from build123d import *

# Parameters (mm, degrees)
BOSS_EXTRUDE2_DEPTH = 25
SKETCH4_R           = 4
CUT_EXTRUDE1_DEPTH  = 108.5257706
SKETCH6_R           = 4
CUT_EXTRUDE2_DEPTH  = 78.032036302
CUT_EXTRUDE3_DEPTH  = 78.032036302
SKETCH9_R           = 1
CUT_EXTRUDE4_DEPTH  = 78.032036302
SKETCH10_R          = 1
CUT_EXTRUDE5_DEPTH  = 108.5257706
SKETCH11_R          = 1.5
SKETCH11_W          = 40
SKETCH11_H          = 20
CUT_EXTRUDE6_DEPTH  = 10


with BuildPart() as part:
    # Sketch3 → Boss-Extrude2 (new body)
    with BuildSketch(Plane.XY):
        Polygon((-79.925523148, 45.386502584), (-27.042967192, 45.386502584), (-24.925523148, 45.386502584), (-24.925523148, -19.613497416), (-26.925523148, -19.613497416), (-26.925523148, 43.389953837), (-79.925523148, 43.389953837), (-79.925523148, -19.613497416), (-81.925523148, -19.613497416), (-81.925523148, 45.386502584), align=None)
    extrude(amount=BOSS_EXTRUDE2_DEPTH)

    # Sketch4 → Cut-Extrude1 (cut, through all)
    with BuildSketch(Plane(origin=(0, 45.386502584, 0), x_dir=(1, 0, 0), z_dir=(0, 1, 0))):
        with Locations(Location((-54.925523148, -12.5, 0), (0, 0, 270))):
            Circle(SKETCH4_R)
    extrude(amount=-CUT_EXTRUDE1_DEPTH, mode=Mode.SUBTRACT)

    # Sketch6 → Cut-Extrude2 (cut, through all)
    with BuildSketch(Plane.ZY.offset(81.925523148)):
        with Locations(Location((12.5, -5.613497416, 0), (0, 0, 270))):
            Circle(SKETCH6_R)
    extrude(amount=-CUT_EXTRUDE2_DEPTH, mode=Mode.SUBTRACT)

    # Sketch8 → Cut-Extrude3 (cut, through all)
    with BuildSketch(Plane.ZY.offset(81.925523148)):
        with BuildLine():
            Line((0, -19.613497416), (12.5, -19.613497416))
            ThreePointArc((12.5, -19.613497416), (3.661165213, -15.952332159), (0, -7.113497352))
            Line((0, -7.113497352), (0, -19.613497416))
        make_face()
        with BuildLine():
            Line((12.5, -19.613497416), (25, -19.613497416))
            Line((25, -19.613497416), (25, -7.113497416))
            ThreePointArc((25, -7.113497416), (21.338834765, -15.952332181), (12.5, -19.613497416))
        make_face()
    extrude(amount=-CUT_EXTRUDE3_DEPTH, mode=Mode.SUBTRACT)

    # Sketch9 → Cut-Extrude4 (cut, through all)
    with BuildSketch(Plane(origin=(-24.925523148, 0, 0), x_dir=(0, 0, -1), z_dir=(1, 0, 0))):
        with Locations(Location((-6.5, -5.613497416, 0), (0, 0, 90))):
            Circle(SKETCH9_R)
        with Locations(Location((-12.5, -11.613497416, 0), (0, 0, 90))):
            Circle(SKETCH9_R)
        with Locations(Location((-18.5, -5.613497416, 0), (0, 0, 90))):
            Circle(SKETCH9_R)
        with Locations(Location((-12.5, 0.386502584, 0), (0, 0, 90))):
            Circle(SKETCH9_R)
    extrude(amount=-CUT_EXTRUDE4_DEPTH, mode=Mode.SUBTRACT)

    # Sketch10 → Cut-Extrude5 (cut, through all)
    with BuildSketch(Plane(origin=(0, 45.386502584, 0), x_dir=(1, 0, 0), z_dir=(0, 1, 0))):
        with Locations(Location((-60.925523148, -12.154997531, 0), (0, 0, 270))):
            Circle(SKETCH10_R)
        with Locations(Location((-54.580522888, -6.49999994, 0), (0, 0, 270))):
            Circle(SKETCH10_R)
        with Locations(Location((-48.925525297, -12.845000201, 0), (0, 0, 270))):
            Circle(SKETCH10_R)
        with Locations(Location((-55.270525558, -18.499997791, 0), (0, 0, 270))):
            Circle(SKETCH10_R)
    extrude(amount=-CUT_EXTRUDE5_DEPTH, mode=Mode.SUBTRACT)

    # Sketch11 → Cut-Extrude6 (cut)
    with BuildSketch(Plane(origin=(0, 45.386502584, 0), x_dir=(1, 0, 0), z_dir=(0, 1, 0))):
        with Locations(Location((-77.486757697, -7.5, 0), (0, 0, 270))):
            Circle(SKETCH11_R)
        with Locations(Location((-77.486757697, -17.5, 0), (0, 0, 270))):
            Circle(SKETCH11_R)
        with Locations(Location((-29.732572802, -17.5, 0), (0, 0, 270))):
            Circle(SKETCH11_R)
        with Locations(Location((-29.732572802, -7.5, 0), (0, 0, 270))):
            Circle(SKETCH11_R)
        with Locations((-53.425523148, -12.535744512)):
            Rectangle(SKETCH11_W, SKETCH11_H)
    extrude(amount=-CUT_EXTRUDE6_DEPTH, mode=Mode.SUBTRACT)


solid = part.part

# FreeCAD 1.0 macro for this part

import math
import FreeCAD as App
import Part
import Sketcher

V = App.Vector
Q = App.Units.Quantity

doc = App.newDocument("Part")
body = doc.addObject("PartDesign::Body", "Body")

sketch1 = body.newObject("Sketcher::SketchObject", "Sketch")
sketch1.AttachmentSupport = (doc.getObject("XY_Plane"), [""])
sketch1.MapMode = "FlatFace"
sketch1.addGeometry([
    Part.LineSegment(V(-24.9, 45.4, 0), V(-81.9, 45.4, 0)),
    Part.LineSegment(V(-81.9, 45.4, 0), V(-81.9, -19.6, 0)),
    Part.LineSegment(V(-81.9, -19.6, 0), V(-79.9, -19.6, 0)),
    Part.LineSegment(V(-79.9, -19.6, 0), V(-79.9, 43.4, 0)),
    Part.LineSegment(V(-79.9, 43.4, 0), V(-26.9, 43.4, 0)),
    Part.LineSegment(V(-26.9, 43.4, 0), V(-26.9, -19.6, 0)),
    Part.LineSegment(V(-26.9, -19.6, 0), V(-24.9, -19.6, 0)),
    Part.LineSegment(V(-24.9, -19.6, 0), V(-24.9, 45.4, 0)),
], False)
sketch1.addConstraint([
    Sketcher.Constraint("Coincident", 0, 2, 1, 1),
    Sketcher.Constraint("Coincident", 1, 2, 2, 1),
    Sketcher.Constraint("Coincident", 2, 2, 3, 1),
    Sketcher.Constraint("Coincident", 3, 2, 4, 1),
    Sketcher.Constraint("Coincident", 4, 2, 5, 1),
    Sketcher.Constraint("Coincident", 5, 2, 6, 1),
    Sketcher.Constraint("Coincident", 6, 2, 7, 1),
    Sketcher.Constraint("Coincident", 7, 2, 0, 1),
    Sketcher.Constraint("Horizontal", 0),
    Sketcher.Constraint("Vertical", 1),
    Sketcher.Constraint("Horizontal", 2),
    Sketcher.Constraint("Vertical", 3),
    Sketcher.Constraint("Horizontal", 4),
    Sketcher.Constraint("Vertical", 5),
    Sketcher.Constraint("Horizontal", 6),
    Sketcher.Constraint("Vertical", 7),
    Sketcher.Constraint("Horizontal", 2, 2, 5, 2),
    Sketcher.Constraint("Equal", 2, 6),
    Sketcher.Constraint("DistanceX", 0, 2, 0, 1, Q("57 mm")),
    Sketcher.Constraint("DistanceX", 2, 1, 2, 2, Q("2 mm")),
    Sketcher.Constraint("DistanceY", 1, 2, 1, 1, Q("65 mm")),
    Sketcher.Constraint("DistanceY", 3, 1, 3, 2, Q("63.003451 mm")),
    Sketcher.Constraint("DistanceX", 0, 2, -1, 1, Q("81.925523 mm")),
    Sketcher.Constraint("DistanceY", -1, 1, 0, 2, Q("45.386503 mm")),
])
pad1 = body.newObject("PartDesign::Pad", "Pad")
pad1.Profile = sketch1
pad1.Length = 25

sketch2 = body.newObject("Sketcher::SketchObject", "Sketch001")
sketch2.AttachmentSupport = (doc.getObject("XZ_Plane"), [""])
sketch2.MapMode = "FlatFace"
sketch2.AttachmentOffset = App.Placement(V(0, 0, -45.386503), App.Rotation())
sketch2.addGeometry(Part.Circle(V(-54.9, 12.5, 0), V(0, 0, 1), 4), False)
sketch2.addConstraint([
    Sketcher.Constraint("Diameter", 0, Q("8 mm")),
    Sketcher.Constraint("DistanceY", -1, 1, 0, 3, Q("12.5 mm")),
    Sketcher.Constraint("DistanceX", 0, 3, -1, 1, Q("54.925523 mm")),
])
pocket1 = body.newObject("PartDesign::Pocket", "Pocket")
pocket1.Profile = sketch2
pocket1.Type = "ThroughAll"
pocket1.Reversed = True

sketch3 = body.newObject("Sketcher::SketchObject", "Sketch002")
sketch3.AttachmentSupport = (doc.getObject("YZ_Plane"), [""])
sketch3.MapMode = "FlatFace"
sketch3.AttachmentOffset = App.Placement(V(0, 0, -81.925523), App.Rotation())
sketch3.addGeometry(Part.Circle(V(-5.6, 12.5, 0), V(0, 0, 1), 4), False)
sketch3.addConstraint([
    Sketcher.Constraint("Diameter", 0, Q("8 mm")),
    Sketcher.Constraint("DistanceY", -1, 1, 0, 3, Q("12.5 mm")),
    Sketcher.Constraint("DistanceX", 0, 3, -1, 1, Q("5.613497 mm")),
])
pocket2 = body.newObject("PartDesign::Pocket", "Pocket001")
pocket2.Profile = sketch3
pocket2.Type = "ThroughAll"
pocket2.Reversed = True

sketch4 = body.newObject("Sketcher::SketchObject", "Sketch003")
sketch4.AttachmentSupport = (doc.getObject("YZ_Plane"), [""])
sketch4.MapMode = "FlatFace"
sketch4.AttachmentOffset = App.Placement(V(0, 0, -81.925523), App.Rotation())
sketch4.addGeometry([
    Part.LineSegment(V(-20, 0, 0), V(-20, 12, 0)),
    Part.ArcOfCircle(Part.Circle(V(-7, 12, 0), V(0, 0, 1), 12), math.radians(180), math.radians(270)),
    Part.LineSegment(V(-7, 0, 0), V(-20, 0, 0)),
    Part.LineSegment(V(-20, 12, 0), V(-20, 25, 0)),
    Part.LineSegment(V(-20, 25, 0), V(-7, 25, 0)),
    Part.ArcOfCircle(Part.Circle(V(-7, 13, 0), V(0, 0, 1), 12), math.radians(90), math.radians(180)),
], False)
sketch4.addConstraint([
    Sketcher.Constraint("Tangent", 0, 2, 1, 1),
    Sketcher.Constraint("Tangent", 1, 2, 2, 1),
    Sketcher.Constraint("Coincident", 2, 2, 0, 1),
    Sketcher.Constraint("Coincident", 3, 2, 4, 1),
    Sketcher.Constraint("Tangent", 4, 2, 5, 1),
    Sketcher.Constraint("Tangent", 5, 2, 3, 1),
    Sketcher.Constraint("Vertical", 0),
    Sketcher.Constraint("Horizontal", 2),
    Sketcher.Constraint("Vertical", 3),
    Sketcher.Constraint("Horizontal", 4),
    Sketcher.Constraint("Coincident", 5, 3, 1, 3),
    Sketcher.Constraint("Equal", 1, 5),
    Sketcher.Constraint("PointOnObject", 1, 2, -1),
    Sketcher.Constraint("Radius", 1, Q("12.5 mm")),
    Sketcher.Constraint("DistanceX", 1, 3, -1, 1, Q("7.113497 mm")),
])
pocket3 = body.newObject("PartDesign::Pocket", "Pocket002")
pocket3.Profile = sketch4
pocket3.Type = "ThroughAll"
pocket3.Reversed = True

sketch5 = body.newObject("Sketcher::SketchObject", "Sketch004")
sketch5.AttachmentSupport = (doc.getObject("YZ_Plane"), [""])
sketch5.MapMode = "FlatFace"
sketch5.AttachmentOffset = App.Placement(V(0, 0, -24.925523), App.Rotation())
sketch5.addGeometry([
    Part.Circle(V(-5.6, 6.5, 0), V(0, 0, 1), 1),
    Part.Circle(V(-11.6, 12.5, 0), V(0, 0, 1), 1),
    Part.Circle(V(-5.6, 18.5, 0), V(0, 0, 1), 1),
    Part.Circle(V(0.4, 12.5, 0), V(0, 0, 1), 1),
], False)
sketch5.addConstraint([
    Sketcher.Constraint("Equal", 0, 1),
    Sketcher.Constraint("Equal", 1, 2),
    Sketcher.Constraint("Equal", 2, 3),
    Sketcher.Constraint("Horizontal", 1, 3, 3, 3),
    Sketcher.Constraint("Vertical", 0, 3, 2, 3),
    Sketcher.Constraint("Diameter", 0, Q("2 mm")),
    Sketcher.Constraint("DistanceX", 1, 3, 0, 3, Q("6 mm")),
    Sketcher.Constraint("DistanceY", 0, 3, 1, 3, Q("6 mm")),
    Sketcher.Constraint("DistanceY", 1, 3, 2, 3, Q("6 mm")),
    Sketcher.Constraint("DistanceX", 0, 3, 3, 3, Q("6 mm")),
    Sketcher.Constraint("DistanceY", -1, 1, 0, 3, Q("6.5 mm")),
    Sketcher.Constraint("DistanceX", 0, 3, -1, 1, Q("5.613497 mm")),
])
pocket4 = body.newObject("PartDesign::Pocket", "Pocket003")
pocket4.Profile = sketch5
pocket4.Type = "ThroughAll"

sketch6 = body.newObject("Sketcher::SketchObject", "Sketch005")
sketch6.AttachmentSupport = (doc.getObject("XZ_Plane"), [""])
sketch6.MapMode = "FlatFace"
sketch6.AttachmentOffset = App.Placement(V(0, 0, -45.386503), App.Rotation())
sketch6.addGeometry([
    Part.Circle(V(-60.9, 12.2, 0), V(0, 0, 1), 1),
    Part.Circle(V(-54.6, 6.5, 0), V(0, 0, 1), 1),
    Part.Circle(V(-48.9, 12.8, 0), V(0, 0, 1), 1),
    Part.Circle(V(-55.3, 18.5, 0), V(0, 0, 1), 1),
], False)
sketch6.addConstraint([
    Sketcher.Constraint("Equal", 0, 1),
    Sketcher.Constraint("Equal", 1, 2),
    Sketcher.Constraint("Equal", 2, 3),
    Sketcher.Constraint("Diameter", 0, Q("2 mm")),
    Sketcher.Constraint("DistanceY", -1, 1, 1, 3, Q("6.5 mm")),
    Sketcher.Constraint("DistanceY", -1, 1, 2, 3, Q("12.845 mm")),
    Sketcher.Constraint("DistanceX", 0, 3, 1, 3, Q("6.345 mm")),
    Sketcher.Constraint("DistanceY", 0, 3, 3, 3, Q("6.345 mm")),
    Sketcher.Constraint("DistanceX", 3, 3, 2, 3, Q("6.345 mm")),
    Sketcher.Constraint("DistanceX", 0, 3, -1, 1, Q("60.925523 mm")),
    Sketcher.Constraint("DistanceY", -1, 1, 0, 3, Q("12.154998 mm")),
    Sketcher.Constraint("DistanceX", 2, 3, -1, 1, Q("48.925525 mm")),
])
pocket5 = body.newObject("PartDesign::Pocket", "Pocket004")
pocket5.Profile = sketch6
pocket5.Type = "ThroughAll"
pocket5.Reversed = True

sketch7 = body.newObject("Sketcher::SketchObject", "Sketch006")
sketch7.AttachmentSupport = (doc.getObject("XZ_Plane"), [""])
sketch7.MapMode = "FlatFace"
sketch7.AttachmentOffset = App.Placement(V(0, 0, -45.386503), App.Rotation())
sketch7.addGeometry([
    Part.Circle(V(-77.5, 7.5, 0), V(0, 0, 1), 1.5),
    Part.Circle(V(-77.5, 17.5, 0), V(0, 0, 1), 1.5),
    Part.Circle(V(-29.7, 17.5, 0), V(0, 0, 1), 1.5),
    Part.Circle(V(-29.7, 7.5, 0), V(0, 0, 1), 1.5),
    Part.LineSegment(V(-73.4, 2.5, 0), V(-73.4, 22.5, 0)),
    Part.LineSegment(V(-73.4, 22.5, 0), V(-33.4, 22.5, 0)),
    Part.LineSegment(V(-33.4, 22.5, 0), V(-33.4, 2.5, 0)),
    Part.LineSegment(V(-33.4, 2.5, 0), V(-73.4, 2.5, 0)),
], False)
sketch7.addConstraint([
    Sketcher.Constraint("Coincident", 4, 2, 5, 1),
    Sketcher.Constraint("Coincident", 5, 2, 6, 1),
    Sketcher.Constraint("Coincident", 6, 2, 7, 1),
    Sketcher.Constraint("Coincident", 7, 2, 4, 1),
    Sketcher.Constraint("Vertical", 4),
    Sketcher.Constraint("Horizontal", 5),
    Sketcher.Constraint("Vertical", 6),
    Sketcher.Constraint("Horizontal", 7),
    Sketcher.Constraint("Equal", 0, 1),
    Sketcher.Constraint("Equal", 1, 2),
    Sketcher.Constraint("Equal", 2, 3),
    Sketcher.Constraint("Horizontal", 1, 3, 2, 3),
    Sketcher.Constraint("Horizontal", 0, 3, 3, 3),
    Sketcher.Constraint("Vertical", 0, 3, 1, 3),
    Sketcher.Constraint("Vertical", 2, 3, 3, 3),
    Sketcher.Constraint("Diameter", 0, Q("3 mm")),
    Sketcher.Constraint("DistanceX", 5, 1, 5, 2, Q("40 mm")),
    Sketcher.Constraint("DistanceY", 4, 1, 4, 2, Q("20 mm")),
    Sketcher.Constraint("DistanceY", 0, 3, 1, 3, Q("10 mm")),
    Sketcher.Constraint("DistanceY", -1, 1, 0, 3, Q("7.5 mm")),
    Sketcher.Constraint("DistanceX", 4, 2, 2, 3, Q("43.69295 mm")),
    Sketcher.Constraint("DistanceX", 0, 3, -1, 1, Q("77.486758 mm")),
    Sketcher.Constraint("DistanceX", 2, 3, -1, 1, Q("29.732573 mm")),
    Sketcher.Constraint("DistanceY", -1, 1, 4, 2, Q("22.535745 mm")),
])
pocket6 = body.newObject("PartDesign::Pocket", "Pocket005")
pocket6.Profile = sketch7
pocket6.Length = 10
pocket6.Reversed = True

doc.recompute()
